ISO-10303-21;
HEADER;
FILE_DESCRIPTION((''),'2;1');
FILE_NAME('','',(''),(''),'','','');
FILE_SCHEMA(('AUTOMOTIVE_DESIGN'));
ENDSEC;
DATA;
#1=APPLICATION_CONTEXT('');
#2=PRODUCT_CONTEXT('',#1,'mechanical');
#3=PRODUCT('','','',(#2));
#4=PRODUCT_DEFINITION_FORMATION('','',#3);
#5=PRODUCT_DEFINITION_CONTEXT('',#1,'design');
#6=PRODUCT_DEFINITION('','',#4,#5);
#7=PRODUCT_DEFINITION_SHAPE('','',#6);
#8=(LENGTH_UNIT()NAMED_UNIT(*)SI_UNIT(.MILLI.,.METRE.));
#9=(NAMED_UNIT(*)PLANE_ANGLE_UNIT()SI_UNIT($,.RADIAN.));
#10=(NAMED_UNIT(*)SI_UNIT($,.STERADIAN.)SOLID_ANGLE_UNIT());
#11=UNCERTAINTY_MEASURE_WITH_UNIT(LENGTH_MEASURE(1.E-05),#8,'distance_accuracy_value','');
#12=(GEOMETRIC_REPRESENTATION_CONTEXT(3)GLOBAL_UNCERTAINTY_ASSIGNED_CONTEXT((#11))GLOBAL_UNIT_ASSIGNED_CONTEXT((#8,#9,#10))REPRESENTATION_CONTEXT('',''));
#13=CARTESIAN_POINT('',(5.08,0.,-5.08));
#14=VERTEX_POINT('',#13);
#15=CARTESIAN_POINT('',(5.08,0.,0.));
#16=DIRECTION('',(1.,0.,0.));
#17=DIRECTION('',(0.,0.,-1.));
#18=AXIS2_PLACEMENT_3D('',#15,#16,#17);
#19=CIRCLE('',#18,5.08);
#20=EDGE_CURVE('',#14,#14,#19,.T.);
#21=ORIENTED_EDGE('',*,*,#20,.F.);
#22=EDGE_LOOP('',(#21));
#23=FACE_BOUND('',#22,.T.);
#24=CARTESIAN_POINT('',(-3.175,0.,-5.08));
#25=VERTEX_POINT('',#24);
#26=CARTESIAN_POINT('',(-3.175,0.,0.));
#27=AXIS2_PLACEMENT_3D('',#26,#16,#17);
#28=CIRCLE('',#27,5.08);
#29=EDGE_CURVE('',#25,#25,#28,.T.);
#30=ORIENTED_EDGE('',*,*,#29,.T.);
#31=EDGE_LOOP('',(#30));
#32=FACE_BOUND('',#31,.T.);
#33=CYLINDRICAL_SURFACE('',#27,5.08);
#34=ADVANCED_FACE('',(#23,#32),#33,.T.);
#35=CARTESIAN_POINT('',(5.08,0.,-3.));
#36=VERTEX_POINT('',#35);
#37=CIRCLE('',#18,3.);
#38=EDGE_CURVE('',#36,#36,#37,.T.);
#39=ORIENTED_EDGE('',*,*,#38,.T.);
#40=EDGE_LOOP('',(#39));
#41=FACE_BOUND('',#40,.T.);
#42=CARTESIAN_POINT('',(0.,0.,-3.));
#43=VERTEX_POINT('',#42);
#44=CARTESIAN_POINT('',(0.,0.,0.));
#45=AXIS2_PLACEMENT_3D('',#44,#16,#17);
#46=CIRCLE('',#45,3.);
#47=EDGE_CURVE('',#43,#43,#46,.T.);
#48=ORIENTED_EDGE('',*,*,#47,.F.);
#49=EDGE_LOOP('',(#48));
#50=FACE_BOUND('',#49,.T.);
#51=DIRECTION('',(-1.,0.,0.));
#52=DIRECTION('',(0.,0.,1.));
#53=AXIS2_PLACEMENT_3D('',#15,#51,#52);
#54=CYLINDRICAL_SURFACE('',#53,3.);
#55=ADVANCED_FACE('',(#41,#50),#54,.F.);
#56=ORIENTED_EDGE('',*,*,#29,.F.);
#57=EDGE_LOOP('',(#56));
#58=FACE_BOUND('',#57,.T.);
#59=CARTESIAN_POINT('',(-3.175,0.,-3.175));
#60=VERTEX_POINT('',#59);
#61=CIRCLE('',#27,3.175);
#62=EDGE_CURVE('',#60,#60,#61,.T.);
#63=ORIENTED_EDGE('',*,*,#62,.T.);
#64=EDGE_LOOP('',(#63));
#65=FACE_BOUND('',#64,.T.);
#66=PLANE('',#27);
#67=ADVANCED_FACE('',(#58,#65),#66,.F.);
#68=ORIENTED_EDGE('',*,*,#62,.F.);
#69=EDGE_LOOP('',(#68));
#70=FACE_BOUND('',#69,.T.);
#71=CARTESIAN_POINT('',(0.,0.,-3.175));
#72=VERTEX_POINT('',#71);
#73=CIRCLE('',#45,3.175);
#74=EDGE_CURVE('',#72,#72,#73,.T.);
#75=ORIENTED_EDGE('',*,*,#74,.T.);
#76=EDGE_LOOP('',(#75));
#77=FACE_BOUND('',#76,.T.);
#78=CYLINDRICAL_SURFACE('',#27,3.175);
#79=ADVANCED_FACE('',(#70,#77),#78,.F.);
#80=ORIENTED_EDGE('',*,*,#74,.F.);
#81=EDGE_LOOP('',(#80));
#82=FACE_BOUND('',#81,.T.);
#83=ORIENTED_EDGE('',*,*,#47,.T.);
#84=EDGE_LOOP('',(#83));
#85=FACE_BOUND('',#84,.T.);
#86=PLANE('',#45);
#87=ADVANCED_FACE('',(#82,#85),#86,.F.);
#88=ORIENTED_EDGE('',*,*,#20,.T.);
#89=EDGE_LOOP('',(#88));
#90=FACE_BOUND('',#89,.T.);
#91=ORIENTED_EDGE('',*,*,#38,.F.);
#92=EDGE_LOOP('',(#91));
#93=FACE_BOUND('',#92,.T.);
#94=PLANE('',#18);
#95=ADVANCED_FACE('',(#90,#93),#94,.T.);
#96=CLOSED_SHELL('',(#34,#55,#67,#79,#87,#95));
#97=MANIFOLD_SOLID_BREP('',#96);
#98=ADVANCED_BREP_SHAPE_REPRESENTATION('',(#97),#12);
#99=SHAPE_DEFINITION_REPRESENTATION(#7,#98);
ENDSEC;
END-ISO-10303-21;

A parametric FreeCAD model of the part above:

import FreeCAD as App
import Part
import Sketcher
from FreeCAD import Vector
Q = App.Units.Quantity

doc = App.newDocument("Part")
params = doc.addObject("Spreadsheet::Sheet", "Params")
for row, (alias, value) in enumerate([
    ("sketch1_diameter", "0.4 in"),
    ("sketch1_diameter2", "0.25 in"),
    ("pad1_length", "0.125 in"),
    ("sketch2_diameter", "0.4 in"),
    ("pad2_length", "0.2 in"),
], start=1):
    params.set(f"A{row}", alias)
    params.set(f"B{row}", "=" + value)
    params.setAlias(f"B{row}", alias)

body = doc.addObject("PartDesign::Body", "Body")

# Sketch on YZ plane
sketch1 = body.newObject("Sketcher::SketchObject", "Sketch")
sketch1.AttachmentSupport = (doc.getObject("YZ_Plane"), [""])
sketch1.MapMode = "FlatFace"
sketch1.addGeometry([
    Part.Circle(Vector(0, 0, 0), Vector(0, 0, 1), 5.1),
    Part.Circle(Vector(0, 0, 0), Vector(0, 0, 1), 3.2),
], False)
sketch1.addConstraint([
    Sketcher.Constraint("Coincident", 0, 3, -1, 1),
    Sketcher.Constraint("Coincident", 1, 3, -1, 1),
    Sketcher.Constraint("Diameter", 0, Q("0.4 in")),
    Sketcher.Constraint("Diameter", 1, Q("0.25 in")),
])
sketch1.setExpression("Constraints[2]", "Params.sketch1_diameter")
sketch1.setExpression("Constraints[3]", "Params.sketch1_diameter2")
pad1 = body.newObject("PartDesign::Pad", "Pad")
pad1.Profile = sketch1
pad1.setExpression("Length", "Params.pad1_length")
pad1.Reversed = True

# Sketch on YZ plane
sketch2 = body.newObject("Sketcher::SketchObject", "Sketch001")
sketch2.AttachmentSupport = (doc.getObject("YZ_Plane"), [""])
sketch2.MapMode = "FlatFace"
sketch2.AttachmentOffset = App.Placement(Vector(0, 0, 0.2 * 25.4), App.Rotation())
sketch2.addGeometry([
    Part.Circle(Vector(0, 0, 0), Vector(0, 0, 1), 5.1),
    Part.Circle(Vector(0, 0, 0), Vector(0, 0, 1), 3),
], False)
sketch2.addConstraint([
    Sketcher.Constraint("Coincident", 0, 3, -1, 1),
    Sketcher.Constraint("Coincident", 1, 3, -1, 1),
    Sketcher.Constraint("Diameter", 0, Q("0.4 in")),
    Sketcher.Constraint("Diameter", 1, Q("6 mm")),
])
sketch2.setExpression("Constraints[2]", "Params.sketch2_diameter")
pad2 = body.newObject("PartDesign::Pad", "Pad001")
pad2.Profile = sketch2
pad2.setExpression("Length", "Params.pad2_length")
pad2.Reversed = True

doc.recompute()
